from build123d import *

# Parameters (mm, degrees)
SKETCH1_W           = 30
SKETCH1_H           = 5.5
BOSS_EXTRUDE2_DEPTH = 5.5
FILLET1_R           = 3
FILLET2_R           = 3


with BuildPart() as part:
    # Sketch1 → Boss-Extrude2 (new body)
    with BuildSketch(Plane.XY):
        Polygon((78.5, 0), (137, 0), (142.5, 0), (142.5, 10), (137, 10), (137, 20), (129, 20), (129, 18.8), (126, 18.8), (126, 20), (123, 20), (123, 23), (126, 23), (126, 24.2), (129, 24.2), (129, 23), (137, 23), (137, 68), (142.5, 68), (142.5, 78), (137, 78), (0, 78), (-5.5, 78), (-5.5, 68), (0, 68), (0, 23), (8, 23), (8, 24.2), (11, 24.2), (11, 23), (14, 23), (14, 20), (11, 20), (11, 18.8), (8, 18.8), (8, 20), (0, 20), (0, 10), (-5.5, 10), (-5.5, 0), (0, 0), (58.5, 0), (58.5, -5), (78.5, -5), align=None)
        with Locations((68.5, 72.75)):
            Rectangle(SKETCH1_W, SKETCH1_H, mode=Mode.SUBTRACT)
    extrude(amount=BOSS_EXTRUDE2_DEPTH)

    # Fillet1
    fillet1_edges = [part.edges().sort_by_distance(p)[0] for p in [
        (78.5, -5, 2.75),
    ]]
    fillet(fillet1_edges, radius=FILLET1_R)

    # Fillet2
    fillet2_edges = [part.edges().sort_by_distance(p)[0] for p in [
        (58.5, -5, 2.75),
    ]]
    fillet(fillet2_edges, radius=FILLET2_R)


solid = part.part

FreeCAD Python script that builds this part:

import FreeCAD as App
import Part
import Sketcher


def edges_at(feature, points):
    """Names of the edges that pass closest to the given points."""
    edges = feature.Shape.Edges
    near = lambda p: min(range(len(edges)), key=lambda i: edges[i].distToShape(Part.Vertex(*p))[0])
    return sorted({f"Edge{near(p) + 1}" for p in points})

doc = App.newDocument("Part")
body = doc.addObject("PartDesign::Body", "Body")

# Sketch on XY plane
sketch1 = doc.addObject("Sketcher::SketchObject", "Sketch")
body.addObject(sketch1)
sketch1.AttachmentSupport = (doc.XY_Plane, [""])
sketch1.MapMode = "FlatFace"
sketch1.addGeometry([
    Part.LineSegment(App.Vector(78.5, 0, 0), App.Vector(142.5, 0, 0)),  # 0
    Part.LineSegment(App.Vector(142.5, 0, 0), App.Vector(142.5, 10, 0)),  # 1
    Part.LineSegment(App.Vector(142.5, 10, 0), App.Vector(137, 10, 0)),  # 2
    Part.LineSegment(App.Vector(137, 10, 0), App.Vector(137, 20, 0)),  # 3
    Part.LineSegment(App.Vector(137, 20, 0), App.Vector(129, 20, 0)),  # 4
    Part.LineSegment(App.Vector(129, 20, 0), App.Vector(129, 18.8, 0)),  # 5
    Part.LineSegment(App.Vector(129, 18.8, 0), App.Vector(126, 18.8, 0)),  # 6
    Part.LineSegment(App.Vector(126, 18.8, 0), App.Vector(126, 20, 0)),  # 7
    Part.LineSegment(App.Vector(126, 20, 0), App.Vector(123, 20, 0)),  # 8
    Part.LineSegment(App.Vector(123, 20, 0), App.Vector(123, 23, 0)),  # 9
    Part.LineSegment(App.Vector(123, 23, 0), App.Vector(126, 23, 0)),  # 10
    Part.LineSegment(App.Vector(126, 23, 0), App.Vector(126, 24.2, 0)),  # 11
    Part.LineSegment(App.Vector(126, 24.2, 0), App.Vector(129, 24.2, 0)),  # 12
    Part.LineSegment(App.Vector(129, 24.2, 0), App.Vector(129, 23, 0)),  # 13
    Part.LineSegment(App.Vector(129, 23, 0), App.Vector(137, 23, 0)),  # 14
    Part.LineSegment(App.Vector(137, 23, 0), App.Vector(137, 68, 0)),  # 15
    Part.LineSegment(App.Vector(137, 68, 0), App.Vector(142.5, 68, 0)),  # 16
    Part.LineSegment(App.Vector(142.5, 68, 0), App.Vector(142.5, 78, 0)),  # 17
    Part.LineSegment(App.Vector(142.5, 78, 0), App.Vector(-5.5, 78, 0)),  # 18
    Part.LineSegment(App.Vector(-5.5, 78, 0), App.Vector(-5.5, 68, 0)),  # 19
    Part.LineSegment(App.Vector(-5.5, 68, 0), App.Vector(0, 68, 0)),  # 20
    Part.LineSegment(App.Vector(0, 68, 0), App.Vector(0, 23, 0)),  # 21
    Part.LineSegment(App.Vector(0, 23, 0), App.Vector(8, 23, 0)),  # 22
    Part.LineSegment(App.Vector(8, 23, 0), App.Vector(8, 24.2, 0)),  # 23
    Part.LineSegment(App.Vector(8, 24.2, 0), App.Vector(11, 24.2, 0)),  # 24
    Part.LineSegment(App.Vector(11, 24.2, 0), App.Vector(11, 23, 0)),  # 25
    Part.LineSegment(App.Vector(11, 23, 0), App.Vector(14, 23, 0)),  # 26
    Part.LineSegment(App.Vector(14, 23, 0), App.Vector(14, 20, 0)),  # 27
    Part.LineSegment(App.Vector(14, 20, 0), App.Vector(11, 20, 0)),  # 28
    Part.LineSegment(App.Vector(11, 20, 0), App.Vector(11, 18.8, 0)),  # 29
    Part.LineSegment(App.Vector(11, 18.8, 0), App.Vector(8, 18.8, 0)),  # 30
    Part.LineSegment(App.Vector(8, 18.8, 0), App.Vector(8, 20, 0)),  # 31
    Part.LineSegment(App.Vector(8, 20, 0), App.Vector(0, 20, 0)),  # 32
    Part.LineSegment(App.Vector(0, 20, 0), App.Vector(0, 10, 0)),  # 33
    Part.LineSegment(App.Vector(0, 10, 0), App.Vector(-5.5, 10, 0)),  # 34
    Part.LineSegment(App.Vector(-5.5, 10, 0), App.Vector(-5.5, 0, 0)),  # 35
    Part.LineSegment(App.Vector(-5.5, 0, 0), App.Vector(58.5, 0, 0)),  # 36
    Part.LineSegment(App.Vector(58.5, 0, 0), App.Vector(58.5, -5, 0)),  # 37
    Part.LineSegment(App.Vector(58.5, -5, 0), App.Vector(78.5, -5, 0)),  # 38
    Part.LineSegment(App.Vector(78.5, -5, 0), App.Vector(78.5, 0, 0)),  # 39
    Part.LineSegment(App.Vector(83.5, 70, 0), App.Vector(53.5, 70, 0)),  # 40
    Part.LineSegment(App.Vector(53.5, 70, 0), App.Vector(53.5, 75.5, 0)),  # 41
    Part.LineSegment(App.Vector(53.5, 75.5, 0), App.Vector(83.5, 75.5, 0)),  # 42
    Part.LineSegment(App.Vector(83.5, 75.5, 0), App.Vector(83.5, 70, 0)),  # 43
], False)
sketch1.addConstraint([
    Sketcher.Constraint("Coincident", 0, 2, 1, 1),
    Sketcher.Constraint("Coincident", 1, 2, 2, 1),
    Sketcher.Constraint("Coincident", 2, 2, 3, 1),
    Sketcher.Constraint("Coincident", 3, 2, 4, 1),
    Sketcher.Constraint("Coincident", 4, 2, 5, 1),
    Sketcher.Constraint("Coincident", 5, 2, 6, 1),
    Sketcher.Constraint("Coincident", 6, 2, 7, 1),
    Sketcher.Constraint("Coincident", 7, 2, 8, 1),
    Sketcher.Constraint("Coincident", 8, 2, 9, 1),
    Sketcher.Constraint("Coincident", 9, 2, 10, 1),
    Sketcher.Constraint("Coincident", 10, 2, 11, 1),
    Sketcher.Constraint("Coincident", 11, 2, 12, 1),
    Sketcher.Constraint("Coincident", 12, 2, 13, 1),
    Sketcher.Constraint("Coincident", 13, 2, 14, 1),
    Sketcher.Constraint("Coincident", 14, 2, 15, 1),
    Sketcher.Constraint("Coincident", 15, 2, 16, 1),
    Sketcher.Constraint("Coincident", 16, 2, 17, 1),
    Sketcher.Constraint("Coincident", 17, 2, 18, 1),
    Sketcher.Constraint("Coincident", 18, 2, 19, 1),
    Sketcher.Constraint("Coincident", 19, 2, 20, 1),
    Sketcher.Constraint("Coincident", 20, 2, 21, 1),
    Sketcher.Constraint("Coincident", 21, 2, 22, 1),
    Sketcher.Constraint("Coincident", 22, 2, 23, 1),
    Sketcher.Constraint("Coincident", 23, 2, 24, 1),
    Sketcher.Constraint("Coincident", 24, 2, 25, 1),
    Sketcher.Constraint("Coincident", 25, 2, 26, 1),
    Sketcher.Constraint("Coincident", 26, 2, 27, 1),
    Sketcher.Constraint("Coincident", 27, 2, 28, 1),
    Sketcher.Constraint("Coincident", 28, 2, 29, 1),
    Sketcher.Constraint("Coincident", 29, 2, 30, 1),
    Sketcher.Constraint("Coincident", 30, 2, 31, 1),
    Sketcher.Constraint("Coincident", 31, 2, 32, 1),
    Sketcher.Constraint("Coincident", 32, 2, 33, 1),
    Sketcher.Constraint("Coincident", 33, 2, 34, 1),
    Sketcher.Constraint("Coincident", 34, 2, 35, 1),
    Sketcher.Constraint("Coincident", 35, 2, 36, 1),
    Sketcher.Constraint("Coincident", 36, 2, 37, 1),
    Sketcher.Constraint("Coincident", 37, 2, 38, 1),
    Sketcher.Constraint("Coincident", 38, 2, 39, 1),
    Sketcher.Constraint("Coincident", 39, 2, 0, 1),
    Sketcher.Constraint("Coincident", 40, 2, 41, 1),
    Sketcher.Constraint("Coincident", 41, 2, 42, 1),
    Sketcher.Constraint("Coincident", 42, 2, 43, 1),
    Sketcher.Constraint("Coincident", 43, 2, 40, 1),
    Sketcher.Constraint("Horizontal", 0),
    Sketcher.Constraint("Vertical", 1),
    Sketcher.Constraint("Horizontal", 2),
    Sketcher.Constraint("Vertical", 3),
    Sketcher.Constraint("Horizontal", 4),
    Sketcher.Constraint("Vertical", 5),
    Sketcher.Constraint("Horizontal", 6),
    Sketcher.Constraint("Vertical", 7),
    Sketcher.Constraint("Horizontal", 8),
    Sketcher.Constraint("Vertical", 9),
    Sketcher.Constraint("Horizontal", 10),
    Sketcher.Constraint("Vertical", 11),
    Sketcher.Constraint("Horizontal", 12),
    Sketcher.Constraint("Vertical", 13),
    Sketcher.Constraint("Horizontal", 14),
    Sketcher.Constraint("Vertical", 15),
    Sketcher.Constraint("Horizontal", 16),
    Sketcher.Constraint("Vertical", 17),
    Sketcher.Constraint("Horizontal", 18),
    Sketcher.Constraint("Vertical", 19),
    Sketcher.Constraint("Horizontal", 20),
    Sketcher.Constraint("Vertical", 21),
    Sketcher.Constraint("Horizontal", 22),
    Sketcher.Constraint("Vertical", 23),
    Sketcher.Constraint("Horizontal", 24),
    Sketcher.Constraint("Vertical", 25),
    Sketcher.Constraint("Horizontal", 26),
    Sketcher.Constraint("Vertical", 27),
    Sketcher.Constraint("Horizontal", 28),
    Sketcher.Constraint("Vertical", 29),
    Sketcher.Constraint("Horizontal", 30),
    Sketcher.Constraint("Vertical", 31),
    Sketcher.Constraint("Horizontal", 32),
    Sketcher.Constraint("Vertical", 33),
    Sketcher.Constraint("Horizontal", 34),
    Sketcher.Constraint("Vertical", 35),
    Sketcher.Constraint("Horizontal", 36),
    Sketcher.Constraint("Vertical", 37),
    Sketcher.Constraint("Horizontal", 38),
    Sketcher.Constraint("Vertical", 39),
    Sketcher.Constraint("Horizontal", 40),
    Sketcher.Constraint("Vertical", 41),
    Sketcher.Constraint("Horizontal", 42),
    Sketcher.Constraint("Vertical", 43),
    Sketcher.Constraint("PointOnObject", 0, 2, -1),
    Sketcher.Constraint("PointOnObject", 20, 2, -2),
    Sketcher.Constraint("PointOnObject", 32, 2, -2),
    Sketcher.Constraint("PointOnObject", 35, 2, -1),
    Sketcher.Constraint("Horizontal", 4, 2, 7, 2),
    Sketcher.Constraint("Horizontal", 10, 2, 13, 2),
    Sketcher.Constraint("Horizontal", 16, 2, 19, 2),
    Sketcher.Constraint("Horizontal", 14, 2, 21, 2),
    Sketcher.Constraint("Horizontal", 12, 2, 23, 2),
    Sketcher.Constraint("Horizontal", 22, 2, 25, 2),
    Sketcher.Constraint("Horizontal", 8, 2, 27, 2),
    Sketcher.Constraint("Horizontal", 6, 2, 29, 2),
    Sketcher.Constraint("Horizontal", 28, 2, 31, 2),
    Sketcher.Constraint("Horizontal", 2, 2, 33, 2),
    Sketcher.Constraint("Vertical", 7, 2, 10, 2),
    Sketcher.Constraint("Vertical", 5, 2, 12, 2),
    Sketcher.Constraint("Vertical", 3, 2, 14, 2),
    Sketcher.Constraint("Vertical", 1, 2, 16, 2),
    Sketcher.Constraint("Vertical", 25, 2, 28, 2),
    Sketcher.Constraint("Vertical", 23, 2, 30, 2),
    Sketcher.Constraint("Vertical", 19, 2, 34, 2),
    Sketcher.Constraint("Equal", 6, 8),
    Sketcher.Constraint("Equal", 16, 20),
    Sketcher.Constraint("Equal", 14, 22),
    Sketcher.Constraint("Equal", 12, 24),
    Sketcher.Constraint("Equal", 24, 26),
    Sketcher.Constraint("Equal", 0, 36),
    Sketcher.Constraint("Equal", 1, 3),
    Sketcher.Constraint("Equal", 30, 9),
    Sketcher.Constraint("Equal", 7, 11),
    Sketcher.Constraint("Equal", 3, 17),
    Sketcher.Constraint("Equal", 34, 41),
    Sketcher.Constraint("DistanceX", 0, 1, 0, 2, 64.0),
    Sketcher.Constraint("DistanceX", 4, 2, 4, 1, 8.0),
    Sketcher.Constraint("DistanceX", 6, 2, 6, 1, 3.0),
    Sketcher.Constraint("DistanceX", 18, 2, 18, 1, 148.0),
    Sketcher.Constraint("DistanceX", 40, 2, 40, 1, 30.0),
    Sketcher.Constraint("DistanceY", 1, 1, 1, 2, 10.0),
    Sketcher.Constraint("DistanceY", 15, 1, 15, 2, 45.0),
    Sketcher.Constraint("DistanceY", 37, 2, 37, 1, 5.0),
    Sketcher.Constraint("DistanceX", 2, 2, 2, 1, 5.5),
    Sketcher.Constraint("DistanceY", 5, 2, 5, 1, 1.2),
    Sketcher.Constraint("DistanceY", -1, 1, 40, 2, 70.0),
    Sketcher.Constraint("DistanceX", 19, 2, 40, 2, 59.0),
])
pad1 = doc.addObject("PartDesign::Pad", "Pad")
body.addObject(pad1)
pad1.Profile = sketch1
pad1.Length = 5.5
doc.recompute()

fillet = doc.addObject("PartDesign::Fillet", "Fillet")
body.addObject(fillet)
fillet.Base = (pad1, edges_at(pad1, [(78.5, -5, 2.75)]))
fillet.Radius = 3
doc.recompute()

fillet2 = doc.addObject("PartDesign::Fillet", "Fillet001")
body.addObject(fillet2)
fillet2.Base = (fillet, edges_at(fillet, [(58.5, -5, 2.75)]))
fillet2.Radius = 3

doc.recompute()
